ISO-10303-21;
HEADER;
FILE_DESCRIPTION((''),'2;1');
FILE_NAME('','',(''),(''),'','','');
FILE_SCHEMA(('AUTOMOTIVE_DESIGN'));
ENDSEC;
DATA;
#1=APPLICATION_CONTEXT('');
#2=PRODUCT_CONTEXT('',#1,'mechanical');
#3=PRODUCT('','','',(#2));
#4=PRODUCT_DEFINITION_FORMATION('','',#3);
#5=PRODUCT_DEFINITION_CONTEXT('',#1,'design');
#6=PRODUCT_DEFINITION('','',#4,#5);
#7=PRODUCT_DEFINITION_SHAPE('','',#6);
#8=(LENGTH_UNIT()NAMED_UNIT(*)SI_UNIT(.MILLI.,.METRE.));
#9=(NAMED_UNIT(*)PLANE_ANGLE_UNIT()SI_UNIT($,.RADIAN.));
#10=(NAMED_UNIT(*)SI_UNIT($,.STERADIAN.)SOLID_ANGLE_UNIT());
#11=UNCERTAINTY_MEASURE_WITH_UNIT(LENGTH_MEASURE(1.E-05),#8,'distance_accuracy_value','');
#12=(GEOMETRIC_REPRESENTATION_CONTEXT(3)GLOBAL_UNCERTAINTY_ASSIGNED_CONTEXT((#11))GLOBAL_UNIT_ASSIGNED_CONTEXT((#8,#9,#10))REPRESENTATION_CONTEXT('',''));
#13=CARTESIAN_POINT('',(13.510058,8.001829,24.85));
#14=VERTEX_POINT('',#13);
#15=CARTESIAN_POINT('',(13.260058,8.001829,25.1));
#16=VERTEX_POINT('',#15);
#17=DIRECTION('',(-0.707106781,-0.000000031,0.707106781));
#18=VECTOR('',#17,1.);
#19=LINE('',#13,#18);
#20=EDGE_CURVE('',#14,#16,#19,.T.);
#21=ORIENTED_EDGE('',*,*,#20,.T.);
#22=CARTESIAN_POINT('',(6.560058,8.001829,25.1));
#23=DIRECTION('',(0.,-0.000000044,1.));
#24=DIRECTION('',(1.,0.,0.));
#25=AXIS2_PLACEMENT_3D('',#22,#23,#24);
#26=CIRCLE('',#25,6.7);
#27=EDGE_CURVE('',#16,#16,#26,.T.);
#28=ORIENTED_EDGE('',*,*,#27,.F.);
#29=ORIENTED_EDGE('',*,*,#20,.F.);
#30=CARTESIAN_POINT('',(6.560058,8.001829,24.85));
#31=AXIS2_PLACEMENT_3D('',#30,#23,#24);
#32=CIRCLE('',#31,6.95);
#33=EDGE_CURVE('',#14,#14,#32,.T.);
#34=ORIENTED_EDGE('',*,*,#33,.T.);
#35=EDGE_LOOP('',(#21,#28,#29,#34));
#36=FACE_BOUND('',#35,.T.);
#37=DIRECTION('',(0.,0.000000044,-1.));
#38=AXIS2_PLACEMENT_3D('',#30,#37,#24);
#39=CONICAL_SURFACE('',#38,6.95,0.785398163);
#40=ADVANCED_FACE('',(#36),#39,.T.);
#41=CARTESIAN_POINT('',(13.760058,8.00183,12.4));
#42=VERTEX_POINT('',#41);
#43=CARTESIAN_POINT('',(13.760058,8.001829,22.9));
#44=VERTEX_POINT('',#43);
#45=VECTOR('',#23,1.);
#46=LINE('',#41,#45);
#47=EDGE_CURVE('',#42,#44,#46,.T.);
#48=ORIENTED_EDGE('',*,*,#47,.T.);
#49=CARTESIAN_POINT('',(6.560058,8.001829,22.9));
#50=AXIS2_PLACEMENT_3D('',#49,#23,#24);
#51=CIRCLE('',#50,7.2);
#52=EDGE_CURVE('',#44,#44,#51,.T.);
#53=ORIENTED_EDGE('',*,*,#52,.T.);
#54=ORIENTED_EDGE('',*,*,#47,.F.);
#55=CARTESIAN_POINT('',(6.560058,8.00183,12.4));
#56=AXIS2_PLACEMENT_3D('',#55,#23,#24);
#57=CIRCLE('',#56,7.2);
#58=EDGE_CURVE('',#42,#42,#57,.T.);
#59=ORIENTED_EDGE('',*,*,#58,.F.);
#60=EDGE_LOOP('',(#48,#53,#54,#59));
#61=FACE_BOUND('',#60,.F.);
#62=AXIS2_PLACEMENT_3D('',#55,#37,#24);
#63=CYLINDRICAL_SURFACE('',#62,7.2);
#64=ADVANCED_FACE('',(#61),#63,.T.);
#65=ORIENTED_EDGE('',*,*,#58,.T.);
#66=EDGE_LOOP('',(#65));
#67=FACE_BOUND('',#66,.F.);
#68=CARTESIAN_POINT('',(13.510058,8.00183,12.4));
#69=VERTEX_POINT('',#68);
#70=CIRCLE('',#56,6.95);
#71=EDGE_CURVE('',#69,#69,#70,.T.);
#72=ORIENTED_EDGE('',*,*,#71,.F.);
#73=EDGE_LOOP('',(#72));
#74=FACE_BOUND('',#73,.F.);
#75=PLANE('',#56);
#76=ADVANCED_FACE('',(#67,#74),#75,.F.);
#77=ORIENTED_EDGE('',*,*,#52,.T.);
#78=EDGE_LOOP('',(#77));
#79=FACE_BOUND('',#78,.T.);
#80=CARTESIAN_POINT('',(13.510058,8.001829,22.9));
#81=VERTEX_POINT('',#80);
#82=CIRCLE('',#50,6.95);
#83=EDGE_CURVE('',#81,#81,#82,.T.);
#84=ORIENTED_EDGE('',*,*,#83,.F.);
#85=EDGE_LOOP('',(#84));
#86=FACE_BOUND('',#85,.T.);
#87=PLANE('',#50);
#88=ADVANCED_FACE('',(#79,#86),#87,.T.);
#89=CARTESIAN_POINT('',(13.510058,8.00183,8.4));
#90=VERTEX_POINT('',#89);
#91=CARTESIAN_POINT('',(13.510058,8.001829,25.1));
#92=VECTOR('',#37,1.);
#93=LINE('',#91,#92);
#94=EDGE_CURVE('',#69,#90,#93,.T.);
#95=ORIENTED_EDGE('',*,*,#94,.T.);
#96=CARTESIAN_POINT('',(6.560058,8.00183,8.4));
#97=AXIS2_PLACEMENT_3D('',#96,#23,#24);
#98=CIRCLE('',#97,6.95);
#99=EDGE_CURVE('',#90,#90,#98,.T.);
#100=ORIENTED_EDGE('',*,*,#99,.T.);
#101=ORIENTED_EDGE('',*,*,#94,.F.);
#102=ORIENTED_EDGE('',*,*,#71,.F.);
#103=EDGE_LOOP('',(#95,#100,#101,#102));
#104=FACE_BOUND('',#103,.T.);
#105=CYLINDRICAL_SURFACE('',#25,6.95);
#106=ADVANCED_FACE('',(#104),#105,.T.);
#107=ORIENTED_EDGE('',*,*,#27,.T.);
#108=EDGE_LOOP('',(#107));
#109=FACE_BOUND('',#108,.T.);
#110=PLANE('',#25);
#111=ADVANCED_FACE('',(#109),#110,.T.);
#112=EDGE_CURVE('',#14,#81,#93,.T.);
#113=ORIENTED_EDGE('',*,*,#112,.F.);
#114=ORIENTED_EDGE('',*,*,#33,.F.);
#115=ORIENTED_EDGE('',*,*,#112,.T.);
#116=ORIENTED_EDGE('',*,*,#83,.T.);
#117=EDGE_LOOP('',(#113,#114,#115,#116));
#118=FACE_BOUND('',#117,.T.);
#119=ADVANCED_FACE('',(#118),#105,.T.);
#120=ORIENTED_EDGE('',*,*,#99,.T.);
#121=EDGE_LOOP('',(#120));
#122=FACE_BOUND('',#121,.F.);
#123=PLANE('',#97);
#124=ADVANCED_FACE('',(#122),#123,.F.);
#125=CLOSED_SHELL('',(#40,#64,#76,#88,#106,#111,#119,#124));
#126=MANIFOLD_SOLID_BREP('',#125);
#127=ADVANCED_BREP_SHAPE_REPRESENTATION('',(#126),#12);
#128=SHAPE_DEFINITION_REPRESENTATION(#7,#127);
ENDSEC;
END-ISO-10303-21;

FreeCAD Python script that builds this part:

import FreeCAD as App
import Part
import Sketcher


def edges_at(feature, points):
    """Names of the edges that pass closest to the given points."""
    edges = feature.Shape.Edges
    near = lambda p: min(range(len(edges)), key=lambda i: edges[i].distToShape(Part.Vertex(*p))[0])
    return sorted({f"Edge{near(p) + 1}" for p in points})

doc = App.newDocument("Part")
body = doc.addObject("PartDesign::Body", "Body")

# Sketch on XY plane
sketch1 = doc.addObject("Sketcher::SketchObject", "Sketch")
body.addObject(sketch1)
sketch1.AttachmentSupport = (doc.XY_Plane, [""])
sketch1.MapMode = "FlatFace"
sketch1.AttachmentOffset = App.Placement(App.Vector(0, 0, 25.1), App.Rotation())
sketch1.addGeometry(Part.Circle(App.Vector(7, 8, 0), App.Vector(0, 0, 1), 7), False)
sketch1.addConstraint([
    Sketcher.Constraint("Diameter", 0, 13.9),
    Sketcher.Constraint("DistanceX", -1, 1, 0, 3, 6.560058),
    Sketcher.Constraint("DistanceY", -1, 1, 0, 3, 8.001829),
])
pad1 = doc.addObject("PartDesign::Pad", "Pad")
body.addObject(pad1)
pad1.Profile = sketch1
pad1.Length = 16.7
pad1.Reversed = True

# Sketch on XY plane
sketch2 = doc.addObject("Sketcher::SketchObject", "Sketch001")
body.addObject(sketch2)
sketch2.AttachmentSupport = (doc.XY_Plane, [""])
sketch2.MapMode = "FlatFace"
sketch2.AttachmentOffset = App.Placement(App.Vector(0, 0, 12.4), App.Rotation())
sketch2.addGeometry([
    Part.Circle(App.Vector(7, 8, 0), App.Vector(0, 0, 1), 7),
    Part.Circle(App.Vector(7, 8, 0), App.Vector(0, 0, 1), 7),
], False)
sketch2.addConstraint([
    Sketcher.Constraint("Coincident", 1, 3, 0, 3),
    Sketcher.Constraint("Diameter", 0, 14.4),
    Sketcher.Constraint("Diameter", 1, 13.9),
    Sketcher.Constraint("DistanceX", -1, 1, 0, 3, 6.560058),
    Sketcher.Constraint("DistanceY", -1, 1, 0, 3, 8.00183),
])
pad2 = doc.addObject("PartDesign::Pad", "Pad001")
body.addObject(pad2)
pad2.Profile = sketch2
pad2.Length = 10.5
doc.recompute()

chamfer = doc.addObject("PartDesign::Chamfer", "Chamfer")
body.addObject(chamfer)
chamfer.Base = (pad2, edges_at(pad2, [(-0.39, 8.002, 25.1)]))
chamfer.Size = 0.25

doc.recompute()
